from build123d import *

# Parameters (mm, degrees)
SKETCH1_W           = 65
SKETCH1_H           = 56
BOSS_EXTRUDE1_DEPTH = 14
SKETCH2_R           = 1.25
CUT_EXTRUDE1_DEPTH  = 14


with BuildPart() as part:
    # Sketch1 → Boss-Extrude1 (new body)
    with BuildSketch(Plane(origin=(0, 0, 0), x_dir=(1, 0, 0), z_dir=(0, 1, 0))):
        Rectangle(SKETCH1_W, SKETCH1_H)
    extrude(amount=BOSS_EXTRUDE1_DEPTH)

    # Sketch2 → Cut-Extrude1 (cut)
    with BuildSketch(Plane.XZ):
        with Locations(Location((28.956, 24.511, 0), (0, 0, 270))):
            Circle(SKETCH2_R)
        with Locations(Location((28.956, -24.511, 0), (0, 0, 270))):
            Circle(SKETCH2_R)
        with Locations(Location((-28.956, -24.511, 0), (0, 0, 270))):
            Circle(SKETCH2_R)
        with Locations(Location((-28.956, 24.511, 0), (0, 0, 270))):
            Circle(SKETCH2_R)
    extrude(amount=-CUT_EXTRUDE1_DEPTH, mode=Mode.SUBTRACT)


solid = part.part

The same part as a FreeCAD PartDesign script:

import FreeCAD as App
import Part
import Sketcher


def add_polygon(sketch, points):
    """Adds a closed chain of lines whose ends are joined by coincident constraints."""
    first, n = sketch.GeometryCount, len(points)
    for a, b in zip(points, points[1:] + points[:1]):
        sketch.addGeometry(Part.LineSegment(App.Vector(*a, 0), App.Vector(*b, 0)), False)
    for i in range(n):
        sketch.addConstraint(Sketcher.Constraint("Coincident", first + i, 2, first + (i + 1) % n, 1))

doc = App.newDocument("Part")
body = doc.addObject("PartDesign::Body", "Body")

sketch1 = doc.addObject("Sketcher::SketchObject", "Sketch")
body.addObject(sketch1)
sketch1.AttachmentSupport = (doc.XZ_Plane, [""])
sketch1.MapMode = "FlatFace"
add_polygon(sketch1, [(-32, -28), (-32, 28), (32, 28), (32, -28)])
sketch1.addConstraint([
    Sketcher.Constraint("Vertical", 0),
    Sketcher.Constraint("Horizontal", 1),
    Sketcher.Constraint("Vertical", 2),
    Sketcher.Constraint("Horizontal", 3),
    Sketcher.Constraint("Symmetric", 0, 2, 2, 2, -1, 1),
    Sketcher.Constraint("DistanceX", 1, 1, 1, 2, 65.0),
    Sketcher.Constraint("DistanceY", 0, 1, 0, 2, 56.0),
])
pad1 = doc.addObject("PartDesign::Pad", "Pad")
body.addObject(pad1)
pad1.Profile = sketch1
pad1.Length = 14
pad1.Reversed = True

sketch2 = doc.addObject("Sketcher::SketchObject", "Sketch001")
body.addObject(sketch2)
sketch2.AttachmentSupport = (doc.XZ_Plane, [""])
sketch2.MapMode = "FlatFace"
sketch2.addGeometry([
    Part.Circle(App.Vector(29, 24.5, 0), App.Vector(0, 0, 1), 1.2),
    Part.Circle(App.Vector(29, -24.5, 0), App.Vector(0, 0, 1), 1.2),
    Part.Circle(App.Vector(-29, -24.5, 0), App.Vector(0, 0, 1), 1.2),
    Part.Circle(App.Vector(-29, 24.5, 0), App.Vector(0, 0, 1), 1.2),
], False)
sketch2.addConstraint([
    Sketcher.Constraint("Equal", 0, 1),
    Sketcher.Constraint("Equal", 1, 2),
    Sketcher.Constraint("Equal", 2, 3),
    Sketcher.Constraint("Symmetric", 0, 3, 2, 3, -1, 1),
    Sketcher.Constraint("Symmetric", 1, 3, 3, 3, -1, 1),
    Sketcher.Constraint("Symmetric", 1, 3, 2, 3, -2),
    Sketcher.Constraint("Diameter", 0, 2.5),
    Sketcher.Constraint("DistanceX", -1, 1, 0, 3, 28.956),
    Sketcher.Constraint("DistanceY", -1, 1, 0, 3, 24.511),
])
pocket1 = doc.addObject("PartDesign::Pocket", "Pocket")
body.addObject(pocket1)
pocket1.Profile = sketch2
pocket1.Length = 14

doc.recompute()
